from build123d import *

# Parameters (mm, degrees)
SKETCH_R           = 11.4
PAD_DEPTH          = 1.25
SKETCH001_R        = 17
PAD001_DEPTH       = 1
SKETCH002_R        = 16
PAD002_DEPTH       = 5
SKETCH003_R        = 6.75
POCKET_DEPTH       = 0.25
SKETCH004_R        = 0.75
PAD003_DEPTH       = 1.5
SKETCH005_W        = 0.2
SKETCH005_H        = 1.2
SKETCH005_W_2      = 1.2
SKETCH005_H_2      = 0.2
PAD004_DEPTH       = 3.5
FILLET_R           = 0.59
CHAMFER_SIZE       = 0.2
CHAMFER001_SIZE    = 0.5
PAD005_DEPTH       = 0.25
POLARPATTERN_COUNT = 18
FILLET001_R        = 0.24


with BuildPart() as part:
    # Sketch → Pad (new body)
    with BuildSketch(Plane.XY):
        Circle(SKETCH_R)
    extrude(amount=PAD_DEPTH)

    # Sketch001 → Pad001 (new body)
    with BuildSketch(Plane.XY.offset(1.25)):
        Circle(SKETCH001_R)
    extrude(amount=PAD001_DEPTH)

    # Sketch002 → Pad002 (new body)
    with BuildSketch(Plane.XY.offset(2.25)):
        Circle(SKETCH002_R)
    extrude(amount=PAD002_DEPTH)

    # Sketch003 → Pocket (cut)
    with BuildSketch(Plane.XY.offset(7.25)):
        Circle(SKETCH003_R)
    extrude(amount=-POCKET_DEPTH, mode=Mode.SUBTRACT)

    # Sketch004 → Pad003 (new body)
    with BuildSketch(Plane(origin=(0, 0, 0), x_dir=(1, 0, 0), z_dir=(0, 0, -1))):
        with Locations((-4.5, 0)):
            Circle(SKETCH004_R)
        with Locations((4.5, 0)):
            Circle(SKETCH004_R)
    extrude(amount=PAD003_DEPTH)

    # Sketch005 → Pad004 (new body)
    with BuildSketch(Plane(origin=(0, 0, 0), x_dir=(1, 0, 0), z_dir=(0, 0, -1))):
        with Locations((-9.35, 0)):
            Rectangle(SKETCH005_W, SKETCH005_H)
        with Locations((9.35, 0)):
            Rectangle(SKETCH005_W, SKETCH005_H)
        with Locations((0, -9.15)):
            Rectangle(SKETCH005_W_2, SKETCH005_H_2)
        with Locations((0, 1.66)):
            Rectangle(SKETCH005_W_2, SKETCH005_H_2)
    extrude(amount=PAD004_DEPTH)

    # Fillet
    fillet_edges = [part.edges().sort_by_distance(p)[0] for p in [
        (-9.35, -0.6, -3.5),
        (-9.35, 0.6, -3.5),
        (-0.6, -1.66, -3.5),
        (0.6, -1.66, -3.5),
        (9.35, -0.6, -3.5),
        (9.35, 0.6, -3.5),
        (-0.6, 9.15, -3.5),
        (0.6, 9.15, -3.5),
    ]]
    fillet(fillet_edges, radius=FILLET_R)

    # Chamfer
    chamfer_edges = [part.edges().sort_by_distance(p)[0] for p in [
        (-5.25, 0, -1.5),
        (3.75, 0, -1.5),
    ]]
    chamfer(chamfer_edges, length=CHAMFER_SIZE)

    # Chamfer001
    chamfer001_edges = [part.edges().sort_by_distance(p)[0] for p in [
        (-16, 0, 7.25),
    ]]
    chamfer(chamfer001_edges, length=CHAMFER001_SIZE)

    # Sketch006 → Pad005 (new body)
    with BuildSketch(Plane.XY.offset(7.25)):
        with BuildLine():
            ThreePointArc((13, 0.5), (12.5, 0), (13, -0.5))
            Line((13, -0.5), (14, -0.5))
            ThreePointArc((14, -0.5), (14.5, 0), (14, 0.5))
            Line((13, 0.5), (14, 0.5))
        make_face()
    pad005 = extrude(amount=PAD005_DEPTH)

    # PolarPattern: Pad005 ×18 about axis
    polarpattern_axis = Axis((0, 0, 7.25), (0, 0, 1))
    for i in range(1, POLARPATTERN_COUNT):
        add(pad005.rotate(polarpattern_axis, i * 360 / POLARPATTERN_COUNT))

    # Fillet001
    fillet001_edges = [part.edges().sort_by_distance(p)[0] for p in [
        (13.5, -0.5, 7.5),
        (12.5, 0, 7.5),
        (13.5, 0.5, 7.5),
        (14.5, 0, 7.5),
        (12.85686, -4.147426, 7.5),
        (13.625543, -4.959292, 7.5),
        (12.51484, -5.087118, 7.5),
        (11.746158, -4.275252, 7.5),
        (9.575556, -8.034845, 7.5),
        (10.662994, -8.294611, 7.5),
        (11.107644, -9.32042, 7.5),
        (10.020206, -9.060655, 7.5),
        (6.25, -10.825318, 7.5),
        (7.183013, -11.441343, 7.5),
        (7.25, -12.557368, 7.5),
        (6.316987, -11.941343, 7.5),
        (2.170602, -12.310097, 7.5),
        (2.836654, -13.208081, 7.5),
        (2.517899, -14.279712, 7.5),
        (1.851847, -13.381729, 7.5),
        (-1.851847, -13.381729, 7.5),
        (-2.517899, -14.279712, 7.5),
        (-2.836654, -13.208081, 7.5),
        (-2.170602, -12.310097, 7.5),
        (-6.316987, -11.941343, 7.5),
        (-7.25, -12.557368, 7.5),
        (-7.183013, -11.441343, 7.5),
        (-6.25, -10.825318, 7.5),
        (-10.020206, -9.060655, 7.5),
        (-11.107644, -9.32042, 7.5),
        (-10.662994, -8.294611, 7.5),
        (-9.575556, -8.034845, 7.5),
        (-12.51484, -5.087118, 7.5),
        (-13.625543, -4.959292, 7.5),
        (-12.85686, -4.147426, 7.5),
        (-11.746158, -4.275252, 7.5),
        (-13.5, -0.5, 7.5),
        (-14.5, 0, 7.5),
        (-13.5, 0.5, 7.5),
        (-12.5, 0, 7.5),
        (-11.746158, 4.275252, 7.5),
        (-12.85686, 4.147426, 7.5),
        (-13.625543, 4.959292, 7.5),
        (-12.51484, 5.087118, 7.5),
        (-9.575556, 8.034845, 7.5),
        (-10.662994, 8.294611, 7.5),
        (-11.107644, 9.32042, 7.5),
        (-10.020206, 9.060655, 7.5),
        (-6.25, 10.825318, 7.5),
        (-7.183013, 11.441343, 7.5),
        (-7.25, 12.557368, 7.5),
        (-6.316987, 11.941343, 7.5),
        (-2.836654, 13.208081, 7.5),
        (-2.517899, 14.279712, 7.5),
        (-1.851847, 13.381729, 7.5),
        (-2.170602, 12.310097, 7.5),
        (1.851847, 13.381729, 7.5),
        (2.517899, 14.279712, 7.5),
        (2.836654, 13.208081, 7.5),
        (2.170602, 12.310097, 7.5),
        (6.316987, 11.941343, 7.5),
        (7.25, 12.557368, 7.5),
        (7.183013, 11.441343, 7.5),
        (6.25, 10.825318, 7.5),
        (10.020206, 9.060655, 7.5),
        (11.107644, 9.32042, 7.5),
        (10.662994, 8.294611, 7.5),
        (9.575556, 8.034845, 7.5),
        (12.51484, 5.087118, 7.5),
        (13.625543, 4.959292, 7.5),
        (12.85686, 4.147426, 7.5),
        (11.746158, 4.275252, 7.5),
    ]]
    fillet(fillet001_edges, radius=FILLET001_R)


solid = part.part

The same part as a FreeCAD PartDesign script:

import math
import FreeCAD as App
import Part
import Sketcher
from FreeCAD import Vector
Q = App.Units.Quantity


def edges_at(feature, points):
    """Names of the edges that pass closest to the given points."""
    edges = feature.Shape.Edges
    near = lambda p: min(range(len(edges)), key=lambda i: edges[i].distToShape(Part.Vertex(*p))[0])
    return sorted({f"Edge{near(p) + 1}" for p in points})


def add_polygon(sketch, points):
    """Adds a closed chain of lines whose ends are joined by coincident constraints."""
    first, n = sketch.GeometryCount, len(points)
    for a, b in zip(points, points[1:] + points[:1]):
        sketch.addGeometry(Part.LineSegment(App.Vector(*a, 0), App.Vector(*b, 0)), False)
    for i in range(n):
        sketch.addConstraint(Sketcher.Constraint("Coincident", first + i, 2, first + (i + 1) % n, 1))

doc = App.newDocument("Part")
body = doc.addObject("PartDesign::Body", "Body")

# Sketch on XY plane
sketch1 = doc.addObject("Sketcher::SketchObject", "Sketch")
body.addObject(sketch1)
sketch1.AttachmentSupport = (doc.XY_Plane, [""])
sketch1.MapMode = "FlatFace"
sketch1.addGeometry(Part.Circle(Vector(0, 0, 0), Vector(0, 0, 1), 11), False)
sketch1.addConstraint([
    Sketcher.Constraint("Coincident", 0, 3, -1, 1),
    Sketcher.Constraint("Diameter", 0, Q("22.8 mm")),
])
pad1 = doc.addObject("PartDesign::Pad", "Pad")
body.addObject(pad1)
pad1.Profile = sketch1
pad1.Length = 1.25

# Sketch on XY plane
sketch2 = doc.addObject("Sketcher::SketchObject", "Sketch001")
body.addObject(sketch2)
sketch2.AttachmentSupport = (doc.XY_Plane, [""])
sketch2.MapMode = "FlatFace"
sketch2.AttachmentOffset = App.Placement(Vector(0, 0, 1.25), App.Rotation())
sketch2.addGeometry(Part.Circle(Vector(0, 0, 0), Vector(0, 0, 1), 17), False)
sketch2.addConstraint([
    Sketcher.Constraint("Coincident", 0, 3, -1, 1),
    Sketcher.Constraint("Diameter", 0, Q("34 mm")),
])
pad2 = doc.addObject("PartDesign::Pad", "Pad001")
body.addObject(pad2)
pad2.Profile = sketch2
pad2.Length = 1

# Sketch on XY plane
sketch3 = doc.addObject("Sketcher::SketchObject", "Sketch002")
body.addObject(sketch3)
sketch3.AttachmentSupport = (doc.XY_Plane, [""])
sketch3.MapMode = "FlatFace"
sketch3.AttachmentOffset = App.Placement(Vector(0, 0, 2.25), App.Rotation())
sketch3.addGeometry(Part.Circle(Vector(0, 0, 0), Vector(0, 0, 1), 16), False)
sketch3.addConstraint([
    Sketcher.Constraint("Coincident", 0, 3, -1, 1),
    Sketcher.Constraint("Diameter", 0, Q("32 mm")),
])
pad3 = doc.addObject("PartDesign::Pad", "Pad002")
body.addObject(pad3)
pad3.Profile = sketch3
pad3.Length = 5

# Sketch on XY plane
sketch4 = doc.addObject("Sketcher::SketchObject", "Sketch003")
body.addObject(sketch4)
sketch4.AttachmentSupport = (doc.XY_Plane, [""])
sketch4.MapMode = "FlatFace"
sketch4.AttachmentOffset = App.Placement(Vector(0, 0, 7.25), App.Rotation())
sketch4.addGeometry(Part.Circle(Vector(0, 0, 0), Vector(0, 0, 1), 7), False)
sketch4.addConstraint([
    Sketcher.Constraint("Coincident", 0, 3, -1, 1),
    Sketcher.Constraint("Diameter", 0, Q("13.5 mm")),
])
pocket1 = doc.addObject("PartDesign::Pocket", "Pocket")
body.addObject(pocket1)
pocket1.Profile = sketch4
pocket1.Length = 0.25

# Sketch on XY plane
sketch5 = doc.addObject("Sketcher::SketchObject", "Sketch004")
body.addObject(sketch5)
sketch5.AttachmentSupport = (doc.XY_Plane, [""])
sketch5.MapMode = "FlatFace"
sketch5.addGeometry([
    Part.Circle(Vector(-4.5, 0, 0), Vector(0, 0, 1), 0.8),
    Part.Circle(Vector(4.5, 0, 0), Vector(0, 0, 1), 0.8),
], False)
sketch5.addConstraint([
    Sketcher.Constraint("Equal", 0, 1),
    Sketcher.Constraint("Symmetric", 0, 3, 1, 3, -1, 1),
    Sketcher.Constraint("PointOnObject", 0, 3, -1),
    Sketcher.Constraint("Diameter", 0, Q("1.5 mm")),
    Sketcher.Constraint("DistanceX", 0, 3, 1, 3, Q("9 mm")),
])
pad4 = doc.addObject("PartDesign::Pad", "Pad003")
body.addObject(pad4)
pad4.Profile = sketch5
pad4.Length = 1.5
pad4.Reversed = True

# Sketch on XY plane
sketch6 = doc.addObject("Sketcher::SketchObject", "Sketch005")
body.addObject(sketch6)
sketch6.AttachmentSupport = (doc.XY_Plane, [""])
sketch6.MapMode = "FlatFace"
add_polygon(sketch6, [(-9.45, -0.6), (-9.45, 0.6), (-9.25, 0.6), (-9.25, -0.6)])  # lines 0-3
add_polygon(sketch6, [(9.25, -0.6), (9.25, 0.6), (9.45, 0.6), (9.45, -0.6)])  # lines 4-7
add_polygon(sketch6, [(-0.6, 9.05), (-0.6, 9.25), (0.6, 9.25), (0.6, 9.05)])  # lines 8-11
add_polygon(sketch6, [(-0.6, -1.76), (-0.6, -1.56), (0.6, -1.56), (0.6, -1.76)])  # lines 12-15
sketch6.addConstraint([
    Sketcher.Constraint("Vertical", 0),
    Sketcher.Constraint("Horizontal", 1),
    Sketcher.Constraint("Vertical", 2),
    Sketcher.Constraint("Horizontal", 3),
    Sketcher.Constraint("Vertical", 4),
    Sketcher.Constraint("Horizontal", 5),
    Sketcher.Constraint("Vertical", 6),
    Sketcher.Constraint("Horizontal", 7),
    Sketcher.Constraint("Vertical", 8),
    Sketcher.Constraint("Horizontal", 9),
    Sketcher.Constraint("Vertical", 10),
    Sketcher.Constraint("Horizontal", 11),
    Sketcher.Constraint("Vertical", 12),
    Sketcher.Constraint("Horizontal", 13),
    Sketcher.Constraint("Vertical", 14),
    Sketcher.Constraint("Horizontal", 15),
    Sketcher.Constraint("Symmetric", 2, 2, 4, 2, -1, 1),
    Sketcher.Constraint("Symmetric", 0, 2, 6, 2, -1, 1),
    Sketcher.Constraint("Horizontal", 1, 2, 4, 2),
    Sketcher.Constraint("Vertical", 11, 2, 12, 2),
    Sketcher.Constraint("Vertical", 10, 2, 13, 2),
    Sketcher.Constraint("Equal", 15, 0),
    Sketcher.Constraint("Equal", 7, 8),
    Sketcher.Constraint("Equal", 10, 12),
    Sketcher.Constraint("DistanceX", 1, 1, 1, 2, Q("0.2 mm")),
    Sketcher.Constraint("DistanceX", 9, 1, 9, 2, Q("1.2 mm")),
    Sketcher.Constraint("DistanceX", 8, 2, -1, 1, Q("0.6 mm")),
    Sketcher.Constraint("DistanceX", 1, 2, 4, 2, Q("18.5 mm")),
    Sketcher.Constraint("DistanceY", -1, 1, 8, 2, Q("9.25 mm")),
    Sketcher.Constraint("DistanceY", 12, 2, -1, 1, Q("1.56 mm")),
])
pad5 = doc.addObject("PartDesign::Pad", "Pad004")
body.addObject(pad5)
pad5.Profile = sketch6
pad5.Length = 3.5
pad5.Reversed = True
doc.recompute()

fillet = doc.addObject("PartDesign::Fillet", "Fillet")
body.addObject(fillet)
fillet.Base = (pad5, edges_at(pad5, [
    (-9.35, -0.6, -3.5),
    (-9.35, 0.6, -3.5),
    (-0.6, -1.66, -3.5),
    (0.6, -1.66, -3.5),
    (9.35, -0.6, -3.5),
    (9.35, 0.6, -3.5),
    (-0.6, 9.15, -3.5),
    (0.6, 9.15, -3.5),
]))
fillet.Radius = 0.59
doc.recompute()

chamfer = doc.addObject("PartDesign::Chamfer", "Chamfer")
body.addObject(chamfer)
chamfer.Base = (fillet, edges_at(fillet, [(-5.25, 0, -1.5), (3.75, 0, -1.5)]))
chamfer.Size = 0.2
doc.recompute()

chamfer2 = doc.addObject("PartDesign::Chamfer", "Chamfer001")
body.addObject(chamfer2)
chamfer2.Base = (chamfer, edges_at(chamfer, [(-16, 0, 7.25)]))
chamfer2.Size = 0.5

# Sketch on XY plane
sketch7 = doc.addObject("Sketcher::SketchObject", "Sketch006")
body.addObject(sketch7)
sketch7.AttachmentSupport = (doc.XY_Plane, [""])
sketch7.MapMode = "FlatFace"
sketch7.AttachmentOffset = App.Placement(Vector(0, 0, 7.25), App.Rotation())
sketch7.addGeometry([
    Part.ArcOfCircle(Part.Circle(Vector(13, 0, 0), Vector(0, 0, 1), 0.5), math.radians(90), math.radians(270)),
    Part.LineSegment(Vector(13, -0.5, 0), Vector(14, -0.5, 0)),
    Part.ArcOfCircle(Part.Circle(Vector(14, 0, 0), Vector(0, 0, 1), 0.5), math.radians(-90), math.radians(90)),
    Part.LineSegment(Vector(14, 0.5, 0), Vector(13, 0.5, 0)),
], False)
sketch7.addConstraint([
    Sketcher.Constraint("Tangent", 0, 2, 1, 1),
    Sketcher.Constraint("Tangent", 1, 2, 2, 1),
    Sketcher.Constraint("Tangent", 2, 2, 3, 1),
    Sketcher.Constraint("Tangent", 3, 2, 0, 1),
    Sketcher.Constraint("Horizontal", 1),
    Sketcher.Constraint("Horizontal", 3),
    Sketcher.Constraint("PointOnObject", 0, 3, -1),
    Sketcher.Constraint("Radius", 0, Q("0.5 mm")),
    Sketcher.Constraint("DistanceX", 1, 1, 1, 2, Q("1 mm")),
    Sketcher.Constraint("DistanceX", -1, 1, 0, 3, Q("13 mm")),
])
pad6 = doc.addObject("PartDesign::Pad", "Pad005")
body.addObject(pad6)
pad6.Profile = sketch7
pad6.Length = 0.25
doc.recompute()

polarpattern = doc.addObject("PartDesign::PolarPattern", "PolarPattern")
body.addObject(polarpattern)
polarpattern.Originals = [pad6]
polarpattern.Axis = (doc.Z_Axis, [""])
polarpattern.Angle = 360
polarpattern.Occurrences = 18
body.Tip = polarpattern
doc.recompute()

fillet2 = doc.addObject("PartDesign::Fillet", "Fillet001")
body.addObject(fillet2)
fillet2.Base = (polarpattern, edges_at(polarpattern, [
    (13.5, -0.5, 7.5),
    (12.5, 0, 7.5),
    (13.5, 0.5, 7.5),
    (14.5, 0, 7.5),
    (12.857, -4.147, 7.5),
    (13.626, -4.959, 7.5),
    (12.515, -5.087, 7.5),
    (11.746, -4.275, 7.5),
    (9.576, -8.035, 7.5),
    (10.663, -8.295, 7.5),
    (11.108, -9.32, 7.5),
    (10.02, -9.061, 7.5),
    (6.25, -10.825, 7.5),
    (7.183, -11.441, 7.5),
    (7.25, -12.557, 7.5),
    (6.317, -11.941, 7.5),
    (2.171, -12.31, 7.5),
    (2.837, -13.208, 7.5),
    (2.518, -14.28, 7.5),
    (1.852, -13.382, 7.5),
    (-1.852, -13.382, 7.5),
    (-2.518, -14.28, 7.5),
    (-2.837, -13.208, 7.5),
    (-2.171, -12.31, 7.5),
    (-6.317, -11.941, 7.5),
    (-7.25, -12.557, 7.5),
    (-7.183, -11.441, 7.5),
    (-6.25, -10.825, 7.5),
    (-10.02, -9.061, 7.5),
    (-11.108, -9.32, 7.5),
    (-10.663, -8.295, 7.5),
    (-9.576, -8.035, 7.5),
    (-12.515, -5.087, 7.5),
    (-13.626, -4.959, 7.5),
    (-12.857, -4.147, 7.5),
    (-11.746, -4.275, 7.5),
    (-13.5, -0.5, 7.5),
    (-14.5, 0, 7.5),
    (-13.5, 0.5, 7.5),
    (-12.5, 0, 7.5),
    (-11.746, 4.275, 7.5),
    (-12.857, 4.147, 7.5),
    (-13.626, 4.959, 7.5),
    (-12.515, 5.087, 7.5),
    (-9.576, 8.035, 7.5),
    (-10.663, 8.295, 7.5),
    (-11.108, 9.32, 7.5),
    (-10.02, 9.061, 7.5),
    (-6.25, 10.825, 7.5),
    (-7.183, 11.441, 7.5),
    (-7.25, 12.557, 7.5),
    (-6.317, 11.941, 7.5),
    (-2.837, 13.208, 7.5),
    (-2.518, 14.28, 7.5),
    (-1.852, 13.382, 7.5),
    (-2.171, 12.31, 7.5),
    (1.852, 13.382, 7.5),
    (2.518, 14.28, 7.5),
    (2.837, 13.208, 7.5),
    (2.171, 12.31, 7.5),
    (6.317, 11.941, 7.5),
    (7.25, 12.557, 7.5),
    (7.183, 11.441, 7.5),
    (6.25, 10.825, 7.5),
    (10.02, 9.061, 7.5),
    (11.108, 9.32, 7.5),
    (10.663, 8.295, 7.5),
    (9.576, 8.035, 7.5),
    (12.515, 5.087, 7.5),
    (13.626, 4.959, 7.5),
    (12.857, 4.147, 7.5),
    (11.746, 4.275, 7.5),
]))
fillet2.Radius = 0.24

doc.recompute()
